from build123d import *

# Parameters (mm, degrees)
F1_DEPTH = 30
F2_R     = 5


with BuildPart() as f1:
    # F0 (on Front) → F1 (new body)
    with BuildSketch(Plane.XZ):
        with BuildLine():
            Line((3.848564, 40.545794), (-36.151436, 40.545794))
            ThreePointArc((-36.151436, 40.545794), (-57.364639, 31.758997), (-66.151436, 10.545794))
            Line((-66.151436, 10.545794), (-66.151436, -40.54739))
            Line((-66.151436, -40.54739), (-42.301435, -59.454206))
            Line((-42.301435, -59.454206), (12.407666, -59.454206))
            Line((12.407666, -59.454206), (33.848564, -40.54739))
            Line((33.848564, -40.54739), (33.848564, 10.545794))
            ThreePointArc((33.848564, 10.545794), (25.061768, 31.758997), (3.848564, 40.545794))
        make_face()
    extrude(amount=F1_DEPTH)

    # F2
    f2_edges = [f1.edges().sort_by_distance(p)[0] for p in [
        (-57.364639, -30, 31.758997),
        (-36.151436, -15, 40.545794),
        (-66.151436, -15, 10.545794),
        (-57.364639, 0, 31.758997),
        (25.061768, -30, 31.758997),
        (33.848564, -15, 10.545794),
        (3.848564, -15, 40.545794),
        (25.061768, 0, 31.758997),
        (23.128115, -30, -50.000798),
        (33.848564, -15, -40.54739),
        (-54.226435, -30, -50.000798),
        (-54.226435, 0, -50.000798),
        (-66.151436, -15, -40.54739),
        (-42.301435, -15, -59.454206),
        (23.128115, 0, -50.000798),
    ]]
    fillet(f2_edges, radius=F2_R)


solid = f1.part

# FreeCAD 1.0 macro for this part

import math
import FreeCAD as App
import Part
import Sketcher

V = App.Vector
Q = App.Units.Quantity


def edges_at(feature, points):
    """Names of the edges that pass closest to the given points."""
    edges = feature.Shape.Edges
    near = lambda p: min(range(len(edges)), key=lambda i: edges[i].distToShape(Part.Vertex(*p))[0])
    return sorted({f"Edge{near(p) + 1}" for p in points})

doc = App.newDocument("Part")
body = doc.addObject("PartDesign::Body", "Body")

# Sketch on XZ plane
sketch1 = body.newObject("Sketcher::SketchObject", "Sketch")
sketch1.AttachmentSupport = (doc.getObject("XZ_Plane"), [""])
sketch1.MapMode = "FlatFace"
sketch1.addGeometry(Part.LineSegment(V(4, 41, 0), V(-36, 41, 0)), False)
sketch1.addGeometry(Part.ArcOfCircle(Part.Circle(V(-36, 11, 0), V(0, 0, 1), 30), math.radians(90), math.radians(180)), False)
sketch1.addGeometry(Part.LineSegment(V(-66, 11, 0), V(-66, -41, 0)), False)
sketch1.addGeometry(Part.LineSegment(V(-66, -41, 0), V(-42, -59, 0)), False)
sketch1.addGeometry(Part.LineSegment(V(-42, -59, 0), V(12, -59, 0)), False)
sketch1.addGeometry(Part.LineSegment(V(12, -59, 0), V(34, -41, 0)), False)
sketch1.addGeometry(Part.LineSegment(V(34, -41, 0), V(34, 11, 0)), False)
sketch1.addGeometry(Part.ArcOfCircle(Part.Circle(V(4, 11, 0), V(0, 0, 1), 30), math.radians(0), math.radians(90)), False)
sketch1.addConstraint(Sketcher.Constraint("Tangent", 0, 2, 1, 1))
sketch1.addConstraint(Sketcher.Constraint("Tangent", 1, 2, 2, 1))
sketch1.addConstraint(Sketcher.Constraint("Coincident", 2, 2, 3, 1))
sketch1.addConstraint(Sketcher.Constraint("Coincident", 3, 2, 4, 1))
sketch1.addConstraint(Sketcher.Constraint("Coincident", 4, 2, 5, 1))
sketch1.addConstraint(Sketcher.Constraint("Coincident", 5, 2, 6, 1))
sketch1.addConstraint(Sketcher.Constraint("Tangent", 6, 2, 7, 1))
sketch1.addConstraint(Sketcher.Constraint("Tangent", 7, 2, 0, 1))
sketch1.addConstraint(Sketcher.Constraint("Horizontal", 0))
sketch1.addConstraint(Sketcher.Constraint("Vertical", 2))
sketch1.addConstraint(Sketcher.Constraint("Horizontal", 4))
sketch1.addConstraint(Sketcher.Constraint("Vertical", 6))
sketch1.addConstraint(Sketcher.Constraint("Equal", 1, 7))
sketch1.addConstraint(Sketcher.Constraint("Horizontal", 2, 2, 5, 2))
sketch1.addConstraint(Sketcher.Constraint("Radius", 1, Q("30.000001 mm")))
sketch1.addConstraint(Sketcher.Constraint("DistanceX", 0, 2, 0, 1, Q("40 mm")))
sketch1.addConstraint(Sketcher.Constraint("DistanceY", 3, 2, 1, 3, Q("69.999999 mm")))
sketch1.addConstraint(Sketcher.Constraint("DistanceX", 2, 2, 3, 2, Q("23.850001 mm")))
sketch1.addConstraint(Sketcher.Constraint("DistanceX", 4, 1, 4, 2, Q("54.709101 mm")))
sketch1.addConstraint(Sketcher.Constraint("DistanceY", 2, 2, 2, 1, Q("51.093184 mm")))
sketch1.addConstraint(Sketcher.Constraint("DistanceY", 2, 2, -1, 1, Q("40.54739 mm")))
sketch1.addConstraint(Sketcher.Constraint("DistanceX", 1, 3, -1, 1, Q("36.151435 mm")))
pad1 = body.newObject("PartDesign::Pad", "Pad")
pad1.Profile = sketch1
pad1.Length = 30
doc.recompute()

fillet = body.newObject("PartDesign::Fillet", "Fillet")
fillet.Base = (pad1, edges_at(pad1, [
    (-57.365, -30, 31.759),
    (-36.151, -15, 40.546),
    (-66.151, -15, 10.546),
    (-57.365, 0, 31.759),
    (25.062, -30, 31.759),
    (33.849, -15, 10.546),
    (3.849, -15, 40.546),
    (25.062, 0, 31.759),
    (23.128, -30, -50.001),
    (33.849, -15, -40.547),
    (-54.226, -30, -50.001),
    (-54.226, 0, -50.001),
    (-66.151, -15, -40.547),
    (-42.301, -15, -59.454),
    (23.128, 0, -50.001),
]))
fillet.Radius = 5

doc.recompute()
